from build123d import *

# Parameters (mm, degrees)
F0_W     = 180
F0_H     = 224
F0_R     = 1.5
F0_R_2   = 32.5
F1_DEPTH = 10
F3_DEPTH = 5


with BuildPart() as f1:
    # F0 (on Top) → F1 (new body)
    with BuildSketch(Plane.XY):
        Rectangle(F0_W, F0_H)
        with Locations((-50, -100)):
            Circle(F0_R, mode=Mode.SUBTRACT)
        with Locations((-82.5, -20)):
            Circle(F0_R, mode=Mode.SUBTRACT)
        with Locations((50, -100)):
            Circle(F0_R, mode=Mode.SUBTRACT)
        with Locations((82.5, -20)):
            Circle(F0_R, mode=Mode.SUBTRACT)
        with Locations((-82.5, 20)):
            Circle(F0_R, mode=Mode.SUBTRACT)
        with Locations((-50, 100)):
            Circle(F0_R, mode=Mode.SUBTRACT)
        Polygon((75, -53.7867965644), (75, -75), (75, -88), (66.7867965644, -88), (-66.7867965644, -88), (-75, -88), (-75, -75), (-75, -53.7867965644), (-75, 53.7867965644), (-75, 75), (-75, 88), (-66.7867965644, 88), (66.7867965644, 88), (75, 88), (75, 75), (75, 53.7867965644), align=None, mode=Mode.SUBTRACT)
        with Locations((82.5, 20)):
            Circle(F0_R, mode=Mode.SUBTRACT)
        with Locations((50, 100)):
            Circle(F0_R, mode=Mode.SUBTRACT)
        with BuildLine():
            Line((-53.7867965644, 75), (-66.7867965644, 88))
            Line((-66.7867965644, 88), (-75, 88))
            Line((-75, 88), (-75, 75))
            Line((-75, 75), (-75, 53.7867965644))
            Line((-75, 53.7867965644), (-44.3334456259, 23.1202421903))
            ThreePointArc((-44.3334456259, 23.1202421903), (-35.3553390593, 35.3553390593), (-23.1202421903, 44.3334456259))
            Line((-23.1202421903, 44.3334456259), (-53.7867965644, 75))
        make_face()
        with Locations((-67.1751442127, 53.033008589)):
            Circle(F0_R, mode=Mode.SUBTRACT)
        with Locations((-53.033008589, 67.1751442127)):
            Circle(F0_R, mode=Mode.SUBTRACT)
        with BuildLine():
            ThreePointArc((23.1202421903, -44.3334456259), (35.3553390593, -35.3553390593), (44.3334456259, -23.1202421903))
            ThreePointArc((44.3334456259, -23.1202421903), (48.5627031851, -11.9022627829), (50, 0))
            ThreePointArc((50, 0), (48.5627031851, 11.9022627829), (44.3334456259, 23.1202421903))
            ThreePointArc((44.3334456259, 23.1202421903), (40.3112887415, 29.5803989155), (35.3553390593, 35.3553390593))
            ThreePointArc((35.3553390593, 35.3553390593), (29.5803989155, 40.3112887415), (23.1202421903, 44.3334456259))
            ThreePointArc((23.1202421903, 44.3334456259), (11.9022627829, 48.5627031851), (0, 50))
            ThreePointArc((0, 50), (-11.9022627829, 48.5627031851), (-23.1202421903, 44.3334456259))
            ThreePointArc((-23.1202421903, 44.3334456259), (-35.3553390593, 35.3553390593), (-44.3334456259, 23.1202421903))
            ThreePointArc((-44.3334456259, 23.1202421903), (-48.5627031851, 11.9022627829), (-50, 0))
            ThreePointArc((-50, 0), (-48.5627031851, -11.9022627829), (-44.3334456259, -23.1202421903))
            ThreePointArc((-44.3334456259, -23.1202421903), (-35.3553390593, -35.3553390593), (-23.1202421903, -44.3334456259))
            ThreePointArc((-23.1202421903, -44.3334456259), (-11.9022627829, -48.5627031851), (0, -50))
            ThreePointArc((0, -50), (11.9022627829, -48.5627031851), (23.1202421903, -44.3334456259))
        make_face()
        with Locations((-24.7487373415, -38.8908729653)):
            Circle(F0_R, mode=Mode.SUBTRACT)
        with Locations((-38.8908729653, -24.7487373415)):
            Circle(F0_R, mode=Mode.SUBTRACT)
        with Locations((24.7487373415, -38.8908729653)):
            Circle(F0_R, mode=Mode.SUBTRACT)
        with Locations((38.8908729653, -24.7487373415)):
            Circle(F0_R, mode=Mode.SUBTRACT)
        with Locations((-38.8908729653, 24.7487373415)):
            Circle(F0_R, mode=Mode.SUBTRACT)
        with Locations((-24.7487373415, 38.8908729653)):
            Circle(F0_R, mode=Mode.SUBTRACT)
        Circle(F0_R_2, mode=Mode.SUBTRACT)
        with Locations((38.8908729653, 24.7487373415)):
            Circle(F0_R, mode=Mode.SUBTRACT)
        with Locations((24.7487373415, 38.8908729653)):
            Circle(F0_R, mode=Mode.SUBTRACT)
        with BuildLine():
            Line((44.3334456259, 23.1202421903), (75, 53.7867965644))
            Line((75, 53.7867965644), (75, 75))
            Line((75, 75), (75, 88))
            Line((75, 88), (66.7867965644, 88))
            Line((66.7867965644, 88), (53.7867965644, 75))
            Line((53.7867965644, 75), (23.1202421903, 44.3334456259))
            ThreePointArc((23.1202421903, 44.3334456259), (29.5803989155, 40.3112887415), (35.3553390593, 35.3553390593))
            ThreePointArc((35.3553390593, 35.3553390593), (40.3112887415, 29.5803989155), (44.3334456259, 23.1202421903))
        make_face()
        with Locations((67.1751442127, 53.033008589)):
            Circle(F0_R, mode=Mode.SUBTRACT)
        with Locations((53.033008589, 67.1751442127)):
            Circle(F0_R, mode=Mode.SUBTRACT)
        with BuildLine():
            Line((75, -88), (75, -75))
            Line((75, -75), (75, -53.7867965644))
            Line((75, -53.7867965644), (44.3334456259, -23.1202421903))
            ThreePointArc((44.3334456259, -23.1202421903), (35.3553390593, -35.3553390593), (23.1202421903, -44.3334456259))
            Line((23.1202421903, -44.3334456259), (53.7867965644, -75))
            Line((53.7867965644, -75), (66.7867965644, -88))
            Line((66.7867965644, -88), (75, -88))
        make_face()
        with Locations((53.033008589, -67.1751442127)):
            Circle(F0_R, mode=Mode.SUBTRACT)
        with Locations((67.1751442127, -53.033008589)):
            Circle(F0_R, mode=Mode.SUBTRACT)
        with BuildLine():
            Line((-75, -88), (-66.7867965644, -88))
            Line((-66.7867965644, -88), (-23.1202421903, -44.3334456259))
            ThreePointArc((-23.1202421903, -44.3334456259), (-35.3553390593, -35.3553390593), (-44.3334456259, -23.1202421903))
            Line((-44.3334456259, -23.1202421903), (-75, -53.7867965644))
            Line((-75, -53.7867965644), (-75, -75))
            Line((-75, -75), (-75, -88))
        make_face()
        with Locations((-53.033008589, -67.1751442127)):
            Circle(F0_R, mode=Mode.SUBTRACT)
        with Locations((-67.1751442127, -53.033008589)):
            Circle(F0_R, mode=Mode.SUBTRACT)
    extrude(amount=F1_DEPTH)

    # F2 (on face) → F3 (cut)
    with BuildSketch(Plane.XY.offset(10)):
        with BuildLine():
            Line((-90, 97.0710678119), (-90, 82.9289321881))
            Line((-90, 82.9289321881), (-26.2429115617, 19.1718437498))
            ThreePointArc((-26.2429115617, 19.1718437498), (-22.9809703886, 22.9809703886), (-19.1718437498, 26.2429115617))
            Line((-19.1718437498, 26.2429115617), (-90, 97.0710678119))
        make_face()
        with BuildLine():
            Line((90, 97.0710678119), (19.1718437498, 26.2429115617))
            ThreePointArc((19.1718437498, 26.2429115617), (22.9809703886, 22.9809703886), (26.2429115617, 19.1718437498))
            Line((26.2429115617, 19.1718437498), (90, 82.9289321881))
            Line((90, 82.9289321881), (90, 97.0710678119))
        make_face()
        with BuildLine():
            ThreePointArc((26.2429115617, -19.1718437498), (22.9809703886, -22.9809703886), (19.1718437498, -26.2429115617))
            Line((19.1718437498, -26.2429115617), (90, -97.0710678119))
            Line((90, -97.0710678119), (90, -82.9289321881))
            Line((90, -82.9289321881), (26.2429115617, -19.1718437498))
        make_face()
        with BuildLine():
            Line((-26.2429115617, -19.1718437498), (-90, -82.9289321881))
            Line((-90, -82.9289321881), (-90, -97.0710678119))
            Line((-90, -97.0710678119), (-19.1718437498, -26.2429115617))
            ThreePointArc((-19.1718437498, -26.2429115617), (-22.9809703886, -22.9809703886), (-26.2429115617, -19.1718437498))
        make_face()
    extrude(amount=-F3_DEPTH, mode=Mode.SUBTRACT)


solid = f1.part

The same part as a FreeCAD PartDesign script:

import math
import FreeCAD as App
import Part
import Sketcher
Q = App.Units.Quantity

doc = App.newDocument("Part")
body = doc.addObject("PartDesign::Body", "Body")

sketch1 = body.newObject("Sketcher::SketchObject", "Sketch")
sketch1.AttachmentSupport = (doc.getObject("XY_Plane"), [""])
sketch1.MapMode = "FlatFace"
sketch1.addGeometry([
    Part.LineSegment(App.Vector(-90, 112, 0), App.Vector(-90, -112, 0)),
    Part.LineSegment(App.Vector(-90, -112, 0), App.Vector(90, -112, 0)),
    Part.LineSegment(App.Vector(90, -112, 0), App.Vector(90, 112, 0)),
    Part.LineSegment(App.Vector(90, 112, 0), App.Vector(-90, 112, 0)),
    Part.Circle(App.Vector(-50, -100, 0), App.Vector(0, 0, 1), 1.5),
    Part.Circle(App.Vector(-67.175144, -53.033009, 0), App.Vector(0, 0, 1), 1.5),
    Part.Circle(App.Vector(-53.033009, -67.175144, 0), App.Vector(0, 0, 1), 1.5),
    Part.Circle(App.Vector(-82.5, -20, 0), App.Vector(0, 0, 1), 1.5),
    Part.Circle(App.Vector(-24.748737, -38.890873, 0), App.Vector(0, 0, 1), 1.5),
    Part.Circle(App.Vector(-38.890873, -24.748737, 0), App.Vector(0, 0, 1), 1.5),
    Part.LineSegment(App.Vector(66.786797, -88, 0), App.Vector(-66.786797, -88, 0)),
    Part.LineSegment(App.Vector(-66.786797, -88, 0), App.Vector(-23.120242, -44.333446, 0)),
    Part.ArcOfCircle(Part.Circle(App.Vector(0, 0, 0), App.Vector(0, 0, 1), 50), math.radians(-117.542397), math.radians(-90)),
    Part.ArcOfCircle(Part.Circle(App.Vector(0, 0, 0), App.Vector(0, 0, 1), 50), math.radians(-90), math.radians(-62.457603)),
    Part.LineSegment(App.Vector(23.120242, -44.333446, 0), App.Vector(66.786797, -88, 0)),
    Part.Circle(App.Vector(50, -100, 0), App.Vector(0, 0, 1), 1.5),
    Part.Circle(App.Vector(53.033009, -67.175144, 0), App.Vector(0, 0, 1), 1.5),
    Part.Circle(App.Vector(67.175144, -53.033009, 0), App.Vector(0, 0, 1), 1.5),
    Part.Circle(App.Vector(24.748737, -38.890873, 0), App.Vector(0, 0, 1), 1.5),
    Part.Circle(App.Vector(38.890873, -24.748737, 0), App.Vector(0, 0, 1), 1.5),
    Part.Circle(App.Vector(82.5, -20, 0), App.Vector(0, 0, 1), 1.5),
    Part.Circle(App.Vector(-82.5, 20, 0), App.Vector(0, 0, 1), 1.5),
    Part.LineSegment(App.Vector(-44.333446, -23.120242, 0), App.Vector(-75, -53.786797, 0)),
    Part.LineSegment(App.Vector(-75, -53.786797, 0), App.Vector(-75, 53.786797, 0)),
    Part.LineSegment(App.Vector(-75, 53.786797, 0), App.Vector(-44.333446, 23.120242, 0)),
    Part.ArcOfCircle(Part.Circle(App.Vector(0, 0, 0), App.Vector(0, 0, 1), 50), math.radians(152.457603), math.radians(180)),
    Part.ArcOfCircle(Part.Circle(App.Vector(0, 0, 0), App.Vector(0, 0, 1), 50), math.radians(180), math.radians(207.542397)),
    Part.Circle(App.Vector(-38.890873, 24.748737, 0), App.Vector(0, 0, 1), 1.5),
    Part.Circle(App.Vector(-24.748737, 38.890873, 0), App.Vector(0, 0, 1), 1.5),
    Part.Circle(App.Vector(-67.175144, 53.033009, 0), App.Vector(0, 0, 1), 1.5),
    Part.Circle(App.Vector(-53.033009, 67.175144, 0), App.Vector(0, 0, 1), 1.5),
    Part.Circle(App.Vector(-50, 100, 0), App.Vector(0, 0, 1), 1.5),
    Part.Circle(App.Vector(0, 0, 0), App.Vector(0, 0, 1), 32.5),
    Part.Circle(App.Vector(38.890873, 24.748737, 0), App.Vector(0, 0, 1), 1.5),
    Part.Circle(App.Vector(24.748737, 38.890873, 0), App.Vector(0, 0, 1), 1.5),
    Part.ArcOfCircle(Part.Circle(App.Vector(0, 0, 0), App.Vector(0, 0, 1), 50), math.radians(0), math.radians(27.542397)),
    Part.LineSegment(App.Vector(44.333446, 23.120242, 0), App.Vector(75, 53.786797, 0)),
    Part.LineSegment(App.Vector(75, 53.786797, 0), App.Vector(75, -53.786797, 0)),
    Part.LineSegment(App.Vector(75, -53.786797, 0), App.Vector(44.333446, -23.120242, 0)),
    Part.ArcOfCircle(Part.Circle(App.Vector(0, 0, 0), App.Vector(0, 0, 1), 50), math.radians(-27.542397), math.radians(0)),
    Part.Circle(App.Vector(82.5, 20, 0), App.Vector(0, 0, 1), 1.5),
    Part.LineSegment(App.Vector(-66.786797, 88, 0), App.Vector(66.786797, 88, 0)),
    Part.LineSegment(App.Vector(66.786797, 88, 0), App.Vector(23.120242, 44.333446, 0)),
    Part.ArcOfCircle(Part.Circle(App.Vector(0, 0, 0), App.Vector(0, 0, 1), 50), math.radians(62.457603), math.radians(90)),
    Part.ArcOfCircle(Part.Circle(App.Vector(0, 0, 0), App.Vector(0, 0, 1), 50), math.radians(90), math.radians(117.542397)),
    Part.LineSegment(App.Vector(-23.120242, 44.333446, 0), App.Vector(-66.786797, 88, 0)),
    Part.Circle(App.Vector(53.033009, 67.175144, 0), App.Vector(0, 0, 1), 1.5),
    Part.Circle(App.Vector(67.175144, 53.033009, 0), App.Vector(0, 0, 1), 1.5),
    Part.Circle(App.Vector(50, 100, 0), App.Vector(0, 0, 1), 1.5),
], False)
sketch1.addConstraint([
    Sketcher.Constraint("Coincident", 0, 2, 1, 1),
    Sketcher.Constraint("Coincident", 1, 2, 2, 1),
    Sketcher.Constraint("Coincident", 2, 2, 3, 1),
    Sketcher.Constraint("Coincident", 3, 2, 0, 1),
    Sketcher.Constraint("Coincident", 10, 2, 11, 1),
    Sketcher.Constraint("Coincident", 11, 2, 12, 1),
    Sketcher.Constraint("Tangent", 12, 2, 13, 1),
    Sketcher.Constraint("Coincident", 13, 2, 14, 1),
    Sketcher.Constraint("Coincident", 14, 2, 10, 1),
    Sketcher.Constraint("Coincident", 22, 2, 23, 1),
    Sketcher.Constraint("Coincident", 23, 2, 24, 1),
    Sketcher.Constraint("Coincident", 24, 2, 25, 1),
    Sketcher.Constraint("Tangent", 25, 2, 26, 1),
    Sketcher.Constraint("Coincident", 26, 2, 22, 1),
    Sketcher.Constraint("Coincident", 35, 2, 36, 1),
    Sketcher.Constraint("Coincident", 36, 2, 37, 1),
    Sketcher.Constraint("Coincident", 37, 2, 38, 1),
    Sketcher.Constraint("Coincident", 38, 2, 39, 1),
    Sketcher.Constraint("Tangent", 39, 2, 35, 1),
    Sketcher.Constraint("Coincident", 41, 2, 42, 1),
    Sketcher.Constraint("Coincident", 42, 2, 43, 1),
    Sketcher.Constraint("Tangent", 43, 2, 44, 1),
    Sketcher.Constraint("Coincident", 44, 2, 45, 1),
    Sketcher.Constraint("Coincident", 45, 2, 41, 1),
    Sketcher.Constraint("Vertical", 0),
    Sketcher.Constraint("Horizontal", 1),
    Sketcher.Constraint("Vertical", 2),
    Sketcher.Constraint("Horizontal", 3),
    Sketcher.Constraint("Horizontal", 10),
    Sketcher.Constraint("Vertical", 23),
    Sketcher.Constraint("Vertical", 37),
    Sketcher.Constraint("Horizontal", 41),
    Sketcher.Constraint("Coincident", 12, 3, -1, 1),
    Sketcher.Constraint("Coincident", 25, 3, -1, 1),
    Sketcher.Constraint("Coincident", 32, 3, -1, 1),
    Sketcher.Constraint("Coincident", 35, 3, -1, 1),
    Sketcher.Constraint("Coincident", 43, 3, -1, 1),
    Sketcher.Constraint("Equal", 4, 5),
    Sketcher.Constraint("Equal", 5, 6),
    Sketcher.Constraint("Equal", 6, 7),
    Sketcher.Constraint("Equal", 7, 8),
    Sketcher.Constraint("Equal", 8, 9),
    Sketcher.Constraint("Equal", 12, 13),
    Sketcher.Constraint("Equal", 9, 15),
    Sketcher.Constraint("Equal", 15, 16),
    Sketcher.Constraint("Equal", 16, 17),
    Sketcher.Constraint("Equal", 17, 18),
    Sketcher.Constraint("Equal", 18, 19),
    Sketcher.Constraint("Equal", 19, 20),
    Sketcher.Constraint("Equal", 20, 21),
    Sketcher.Constraint("Equal", 13, 25),
    Sketcher.Constraint("Equal", 25, 26),
    Sketcher.Constraint("Equal", 21, 27),
    Sketcher.Constraint("Equal", 27, 28),
    Sketcher.Constraint("Equal", 28, 29),
    Sketcher.Constraint("Equal", 29, 30),
    Sketcher.Constraint("Equal", 30, 31),
    Sketcher.Constraint("Equal", 31, 33),
    Sketcher.Constraint("Equal", 33, 34),
    Sketcher.Constraint("Equal", 26, 35),
    Sketcher.Constraint("Equal", 35, 39),
    Sketcher.Constraint("Equal", 34, 40),
    Sketcher.Constraint("Equal", 39, 43),
    Sketcher.Constraint("Equal", 43, 44),
    Sketcher.Constraint("Equal", 40, 46),
    Sketcher.Constraint("Equal", 46, 47),
    Sketcher.Constraint("Equal", 47, 48),
    Sketcher.Constraint("Symmetric", 20, 3, 21, 3, -1, 1),
    Sketcher.Constraint("Symmetric", 19, 3, 27, 3, -1, 1),
    Sketcher.Constraint("Symmetric", 18, 3, 28, 3, -1, 1),
    Sketcher.Constraint("Symmetric", 17, 3, 29, 3, -1, 1),
    Sketcher.Constraint("Symmetric", 16, 3, 30, 3, -1, 1),
    Sketcher.Constraint("Symmetric", 15, 3, 31, 3, -1, 1),
    Sketcher.Constraint("Symmetric", 9, 3, 33, 3, -1, 1),
    Sketcher.Constraint("Symmetric", 8, 3, 34, 3, -1, 1),
    Sketcher.Constraint("Symmetric", 7, 3, 40, 3, -1, 1),
    Sketcher.Constraint("Symmetric", 6, 3, 46, 3, -1, 1),
    Sketcher.Constraint("Symmetric", 5, 3, 47, 3, -1, 1),
    Sketcher.Constraint("Symmetric", 4, 3, 48, 3, -1, 1),
    Sketcher.Constraint("Symmetric", 0, 2, 2, 2, -1, 1),
    Sketcher.Constraint("Symmetric", 22, 2, 36, 2, -1, 1),
    Sketcher.Constraint("Symmetric", 10, 2, 41, 2, -1, 1),
    Sketcher.Constraint("Symmetric", 4, 3, 15, 3, -2),
    Sketcher.Constraint("Symmetric", 6, 3, 16, 3, -2),
    Sketcher.Constraint("Symmetric", 5, 3, 17, 3, -2),
    Sketcher.Constraint("Symmetric", 8, 3, 18, 3, -2),
    Sketcher.Constraint("Symmetric", 9, 3, 19, 3, -2),
    Sketcher.Constraint("Symmetric", 7, 3, 20, 3, -2),
    Sketcher.Constraint("PointOnObject", 12, 2, -2),
    Sketcher.Constraint("PointOnObject", 25, 2, -1),
    Sketcher.Constraint("PointOnObject", 39, 2, -1),
    Sketcher.Constraint("PointOnObject", 43, 2, -2),
    Sketcher.Constraint("Perpendicular", 11, 14),
    Sketcher.Constraint("Perpendicular", 14, 22),
    Sketcher.Constraint("Perpendicular", 22, 24),
    Sketcher.Constraint("Perpendicular", 24, 36),
    Sketcher.Constraint("Perpendicular", 36, 38),
    Sketcher.Constraint("Perpendicular", 38, 42),
    Sketcher.Constraint("Perpendicular", 42, 45),
    Sketcher.Constraint("Horizontal", 11, 2, 13, 2),
    Sketcher.Constraint("Horizontal", 24, 2, 35, 2),
    Sketcher.Constraint("Horizontal", 23, 2, 36, 2),
    Sketcher.Constraint("Horizontal", 22, 2, 37, 2),
    Sketcher.Constraint("Horizontal", 42, 2, 44, 2),
    Sketcher.Constraint("Vertical", 31, 3, 25, 2),
    Sketcher.Constraint("Diameter", 4, Q("3 mm")),
    Sketcher.Constraint("Diameter", 32, Q("65 mm")),
    Sketcher.Constraint("Radius", 12, Q("50 mm")),
    Sketcher.Constraint("DistanceX", 1, 1, 1, 2, Q("180 mm")),
    Sketcher.Constraint("DistanceY", 0, 2, 0, 1, Q("224 mm")),
    Sketcher.Constraint("DistanceY", 4, 3, -1, 1, Q("100 mm")),
    Sketcher.Constraint("DistanceY", 7, 3, -1, 1, Q("20 mm")),
    Sketcher.Constraint("DistanceY", 10, 2, -1, 1, Q("88 mm")),
    Sketcher.Constraint("DistanceX", 22, 2, -1, 1, Q("75 mm")),
    Sketcher.Constraint("DistanceX", 7, 3, -1, 1, Q("82.5 mm")),
    Sketcher.Constraint("DistanceY", 6, 3, 11, 2, Q("22.841699 mm")),
    Sketcher.Constraint("DistanceX", 29, 3, 24, 2, Q("22.841699 mm")),
    Sketcher.Constraint("DistanceX", 10, 2, 10, 1, Q("133.573593 mm")),
    Sketcher.Constraint("DistanceY", 23, 1, 23, 2, Q("107.573593 mm")),
    Sketcher.Constraint("DistanceY", 5, 3, -1, 1, Q("53.033009 mm")),
    Sketcher.Constraint("DistanceX", 6, 3, -1, 1, Q("53.033009 mm")),
    Sketcher.Constraint("DistanceX", 6, 3, 8, 3, Q("28.284271 mm")),
    Sketcher.Constraint("DistanceY", 6, 3, 8, 3, Q("28.284271 mm")),
    Sketcher.Constraint("DistanceX", 5, 3, 9, 3, Q("28.284271 mm")),
    Sketcher.Constraint("DistanceY", 5, 3, 9, 3, Q("28.284271 mm")),
])
pad1 = body.newObject("PartDesign::Pad", "Pad")
pad1.Profile = sketch1
pad1.Length = 10

sketch2 = body.newObject("Sketcher::SketchObject", "Sketch001")
sketch2.AttachmentSupport = (doc.getObject("XY_Plane"), [""])
sketch2.MapMode = "FlatFace"
sketch2.AttachmentOffset = App.Placement(App.Vector(0, 0, 10), App.Rotation())
sketch2.addGeometry([
    Part.LineSegment(App.Vector(-90, 97.071068, 0), App.Vector(-90, 82.928932, 0)),
    Part.LineSegment(App.Vector(-90, 82.928932, 0), App.Vector(-26.242912, 19.171844, 0)),
    Part.ArcOfCircle(Part.Circle(App.Vector(0, 0, 0), App.Vector(0, 0, 1), 32.5), math.radians(126.150117), math.radians(143.849883)),
    Part.LineSegment(App.Vector(-19.171844, 26.242912, 0), App.Vector(-90, 97.071068, 0)),
    Part.LineSegment(App.Vector(90, 97.071068, 0), App.Vector(19.171844, 26.242912, 0)),
    Part.ArcOfCircle(Part.Circle(App.Vector(0, 0, 0), App.Vector(0, 0, 1), 32.5), math.radians(36.150117), math.radians(53.849883)),
    Part.LineSegment(App.Vector(26.242912, 19.171844, 0), App.Vector(90, 82.928932, 0)),
    Part.LineSegment(App.Vector(90, 82.928932, 0), App.Vector(90, 97.071068, 0)),
    Part.ArcOfCircle(Part.Circle(App.Vector(0, 0, 0), App.Vector(0, 0, 1), 32.5), math.radians(-53.849883), math.radians(-36.150117)),
    Part.LineSegment(App.Vector(19.171844, -26.242912, 0), App.Vector(90, -97.071068, 0)),
    Part.LineSegment(App.Vector(90, -97.071068, 0), App.Vector(90, -82.928932, 0)),
    Part.LineSegment(App.Vector(90, -82.928932, 0), App.Vector(26.242912, -19.171844, 0)),
    Part.LineSegment(App.Vector(-26.242912, -19.171844, 0), App.Vector(-90, -82.928932, 0)),
    Part.LineSegment(App.Vector(-90, -82.928932, 0), App.Vector(-90, -97.071068, 0)),
    Part.LineSegment(App.Vector(-90, -97.071068, 0), App.Vector(-19.171844, -26.242912, 0)),
    Part.ArcOfCircle(Part.Circle(App.Vector(0, 0, 0), App.Vector(0, 0, 1), 32.5), math.radians(-143.849883), math.radians(-126.150117)),
], False)
sketch2.addConstraint([
    Sketcher.Constraint("Coincident", 0, 2, 1, 1),
    Sketcher.Constraint("Coincident", 1, 2, 2, 2),
    Sketcher.Constraint("Coincident", 2, 1, 3, 1),
    Sketcher.Constraint("Coincident", 3, 2, 0, 1),
    Sketcher.Constraint("Coincident", 4, 2, 5, 2),
    Sketcher.Constraint("Coincident", 5, 1, 6, 1),
    Sketcher.Constraint("Coincident", 6, 2, 7, 1),
    Sketcher.Constraint("Coincident", 7, 2, 4, 1),
    Sketcher.Constraint("Coincident", 8, 1, 9, 1),
    Sketcher.Constraint("Coincident", 9, 2, 10, 1),
    Sketcher.Constraint("Coincident", 10, 2, 11, 1),
    Sketcher.Constraint("Coincident", 11, 2, 8, 2),
    Sketcher.Constraint("Coincident", 12, 2, 13, 1),
    Sketcher.Constraint("Coincident", 13, 2, 14, 1),
    Sketcher.Constraint("Coincident", 14, 2, 15, 2),
    Sketcher.Constraint("Coincident", 15, 1, 12, 1),
    Sketcher.Constraint("Vertical", 0),
    Sketcher.Constraint("Vertical", 7),
    Sketcher.Constraint("Vertical", 10),
    Sketcher.Constraint("Vertical", 13),
    Sketcher.Constraint("Coincident", 2, 3, -1, 1),
    Sketcher.Constraint("Coincident", 5, 3, -1, 1),
    Sketcher.Constraint("Coincident", 8, 3, -1, 1),
    Sketcher.Constraint("Coincident", 15, 3, -1, 1),
    Sketcher.Constraint("Equal", 2, 5),
    Sketcher.Constraint("Equal", 5, 8),
    Sketcher.Constraint("Equal", 8, 15),
    Sketcher.Constraint("Symmetric", 3, 2, 9, 2, -1, 1),
    Sketcher.Constraint("Symmetric", 6, 2, 12, 2, -1, 1),
    Sketcher.Constraint("Symmetric", 0, 2, 6, 2, -2),
    Sketcher.Constraint("Parallel", 1, 3),
    Sketcher.Constraint("Perpendicular", 3, 4),
    Sketcher.Constraint("Parallel", 4, 6),
    Sketcher.Constraint("Perpendicular", 6, 9),
    Sketcher.Constraint("Parallel", 9, 11),
    Sketcher.Constraint("Perpendicular", 11, 12),
    Sketcher.Constraint("Parallel", 12, 14),
    Sketcher.Constraint("Horizontal", 2, 1, 4, 2),
    Sketcher.Constraint("Horizontal", 1, 2, 5, 1),
    Sketcher.Constraint("Horizontal", 10, 2, 12, 2),
    Sketcher.Constraint("Horizontal", 9, 2, 13, 2),
    Sketcher.Constraint("Radius", 2, Q("32.5 mm")),
    Sketcher.Constraint("DistanceX", 0, 2, -1, 1, Q("90 mm")),
    Sketcher.Constraint("Distance", 1, Q("90.166139 mm")),
    Sketcher.Constraint("Distance", 3, Q("100.166139 mm")),
])
pocket1 = body.newObject("PartDesign::Pocket", "Pocket")
pocket1.Profile = sketch2
pocket1.Length = 5

doc.recompute()
